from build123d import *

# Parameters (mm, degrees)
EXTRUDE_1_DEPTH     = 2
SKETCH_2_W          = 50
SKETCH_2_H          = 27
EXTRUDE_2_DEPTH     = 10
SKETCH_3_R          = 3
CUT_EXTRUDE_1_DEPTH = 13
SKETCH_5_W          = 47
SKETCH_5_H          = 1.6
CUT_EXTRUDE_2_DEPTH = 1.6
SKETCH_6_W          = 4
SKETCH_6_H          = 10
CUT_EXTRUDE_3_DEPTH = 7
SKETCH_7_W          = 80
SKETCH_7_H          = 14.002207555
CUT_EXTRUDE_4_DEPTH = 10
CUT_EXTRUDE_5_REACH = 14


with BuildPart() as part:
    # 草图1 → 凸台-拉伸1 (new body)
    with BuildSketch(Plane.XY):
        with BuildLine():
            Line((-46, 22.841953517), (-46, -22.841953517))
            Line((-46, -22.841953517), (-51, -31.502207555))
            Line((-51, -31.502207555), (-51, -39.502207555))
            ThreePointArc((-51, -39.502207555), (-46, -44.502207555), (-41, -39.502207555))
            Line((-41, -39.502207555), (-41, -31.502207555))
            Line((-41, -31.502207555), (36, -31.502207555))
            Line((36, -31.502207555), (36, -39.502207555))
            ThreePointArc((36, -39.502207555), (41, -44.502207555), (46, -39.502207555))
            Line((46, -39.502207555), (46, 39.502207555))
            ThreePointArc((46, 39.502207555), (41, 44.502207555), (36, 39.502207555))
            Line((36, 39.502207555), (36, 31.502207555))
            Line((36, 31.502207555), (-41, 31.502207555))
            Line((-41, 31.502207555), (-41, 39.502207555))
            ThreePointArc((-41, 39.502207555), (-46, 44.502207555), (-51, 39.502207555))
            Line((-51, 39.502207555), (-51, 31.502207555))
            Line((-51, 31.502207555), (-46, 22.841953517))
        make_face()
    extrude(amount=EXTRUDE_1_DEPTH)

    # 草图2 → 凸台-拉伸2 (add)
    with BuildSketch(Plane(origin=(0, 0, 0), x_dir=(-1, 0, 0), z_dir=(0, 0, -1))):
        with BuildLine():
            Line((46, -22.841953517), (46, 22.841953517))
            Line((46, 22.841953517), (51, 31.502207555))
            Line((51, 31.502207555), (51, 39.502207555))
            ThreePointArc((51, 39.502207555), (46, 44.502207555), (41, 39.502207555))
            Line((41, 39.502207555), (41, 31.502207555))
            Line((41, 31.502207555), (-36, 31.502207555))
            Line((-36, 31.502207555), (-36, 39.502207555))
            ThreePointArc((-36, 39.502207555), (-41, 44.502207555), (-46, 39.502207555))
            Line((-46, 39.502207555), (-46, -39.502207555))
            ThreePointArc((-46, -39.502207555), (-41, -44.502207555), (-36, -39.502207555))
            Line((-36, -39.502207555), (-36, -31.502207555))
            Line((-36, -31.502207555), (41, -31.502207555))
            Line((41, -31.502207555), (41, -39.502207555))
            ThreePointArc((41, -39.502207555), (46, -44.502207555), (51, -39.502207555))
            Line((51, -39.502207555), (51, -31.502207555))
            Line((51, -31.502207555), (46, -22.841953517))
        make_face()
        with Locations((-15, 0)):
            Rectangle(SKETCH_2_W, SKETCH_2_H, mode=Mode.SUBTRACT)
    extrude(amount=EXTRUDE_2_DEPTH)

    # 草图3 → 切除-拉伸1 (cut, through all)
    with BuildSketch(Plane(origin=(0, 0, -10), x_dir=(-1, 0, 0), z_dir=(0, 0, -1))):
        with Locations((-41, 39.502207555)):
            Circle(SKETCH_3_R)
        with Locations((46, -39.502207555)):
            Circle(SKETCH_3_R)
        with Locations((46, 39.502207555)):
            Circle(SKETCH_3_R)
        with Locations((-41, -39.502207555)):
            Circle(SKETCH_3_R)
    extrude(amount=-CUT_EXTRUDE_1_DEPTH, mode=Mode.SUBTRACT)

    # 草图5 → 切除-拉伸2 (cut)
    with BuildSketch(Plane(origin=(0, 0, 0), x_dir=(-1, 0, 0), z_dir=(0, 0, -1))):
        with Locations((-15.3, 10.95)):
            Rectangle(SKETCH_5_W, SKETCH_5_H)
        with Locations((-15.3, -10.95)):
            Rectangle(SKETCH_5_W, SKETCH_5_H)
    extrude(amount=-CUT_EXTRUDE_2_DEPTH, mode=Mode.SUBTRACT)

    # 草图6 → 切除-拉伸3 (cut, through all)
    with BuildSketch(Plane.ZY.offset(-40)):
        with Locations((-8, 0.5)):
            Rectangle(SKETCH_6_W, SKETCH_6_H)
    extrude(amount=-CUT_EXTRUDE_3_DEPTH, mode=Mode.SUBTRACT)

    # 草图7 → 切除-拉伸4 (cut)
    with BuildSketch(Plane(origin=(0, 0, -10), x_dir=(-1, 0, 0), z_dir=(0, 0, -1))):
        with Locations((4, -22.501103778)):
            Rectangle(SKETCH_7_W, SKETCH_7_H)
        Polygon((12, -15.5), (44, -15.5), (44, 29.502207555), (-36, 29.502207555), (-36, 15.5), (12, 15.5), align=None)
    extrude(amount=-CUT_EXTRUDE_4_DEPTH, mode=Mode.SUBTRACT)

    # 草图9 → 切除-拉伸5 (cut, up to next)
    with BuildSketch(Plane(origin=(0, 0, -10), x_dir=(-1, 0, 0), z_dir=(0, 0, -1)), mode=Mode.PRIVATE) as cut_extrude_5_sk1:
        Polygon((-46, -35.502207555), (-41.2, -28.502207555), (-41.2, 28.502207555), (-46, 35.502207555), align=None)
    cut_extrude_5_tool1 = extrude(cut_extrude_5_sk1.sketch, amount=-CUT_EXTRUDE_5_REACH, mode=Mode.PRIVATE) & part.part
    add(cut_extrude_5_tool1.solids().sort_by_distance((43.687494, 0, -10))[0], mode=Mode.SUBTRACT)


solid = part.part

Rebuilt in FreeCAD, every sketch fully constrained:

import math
import FreeCAD as App
import Part
import Sketcher

V = App.Vector
Q = App.Units.Quantity


def add_polygon(sketch, points):
    """Adds a closed chain of lines whose ends are joined by coincident constraints."""
    first, n = sketch.GeometryCount, len(points)
    for a, b in zip(points, points[1:] + points[:1]):
        sketch.addGeometry(Part.LineSegment(App.Vector(*a, 0), App.Vector(*b, 0)), False)
    for i in range(n):
        sketch.addConstraint(Sketcher.Constraint("Coincident", first + i, 2, first + (i + 1) % n, 1))

doc = App.newDocument("Part")
body = doc.addObject("PartDesign::Body", "Body")

sketch1 = body.newObject("Sketcher::SketchObject", "Sketch")
sketch1.AttachmentSupport = (doc.getObject("XY_Plane"), [""])
sketch1.MapMode = "FlatFace"
sketch1.addGeometry(Part.LineSegment(V(-46, 22.841954, 0), V(-46, -22.841954, 0)), False)
sketch1.addGeometry(Part.LineSegment(V(-46, -22.841954, 0), V(-51, -31.502208, 0)), False)
sketch1.addGeometry(Part.LineSegment(V(-51, -31.502208, 0), V(-51, -39.502208, 0)), False)
sketch1.addGeometry(Part.ArcOfCircle(Part.Circle(V(-46, -39.502208, 0), V(0, 0, 1), 5), math.radians(180), math.radians(360)), False)
sketch1.addGeometry(Part.LineSegment(V(-41, -39.502208, 0), V(-41, -31.502208, 0)), False)
sketch1.addGeometry(Part.LineSegment(V(-41, -31.502208, 0), V(36, -31.502208, 0)), False)
sketch1.addGeometry(Part.LineSegment(V(36, -31.502208, 0), V(36, -39.502208, 0)), False)
sketch1.addGeometry(Part.ArcOfCircle(Part.Circle(V(41, -39.502208, 0), V(0, 0, 1), 5), math.radians(180), math.radians(360)), False)
sketch1.addGeometry(Part.LineSegment(V(46, -39.502208, 0), V(46, 39.502208, 0)), False)
sketch1.addGeometry(Part.ArcOfCircle(Part.Circle(V(41, 39.502208, 0), V(0, 0, 1), 5), math.radians(0), math.radians(180)), False)
sketch1.addGeometry(Part.LineSegment(V(36, 39.502208, 0), V(36, 31.502208, 0)), False)
sketch1.addGeometry(Part.LineSegment(V(36, 31.502208, 0), V(-41, 31.502208, 0)), False)
sketch1.addGeometry(Part.LineSegment(V(-41, 31.502208, 0), V(-41, 39.502208, 0)), False)
sketch1.addGeometry(Part.ArcOfCircle(Part.Circle(V(-46, 39.502208, 0), V(0, 0, 1), 5), math.radians(0), math.radians(180)), False)
sketch1.addGeometry(Part.LineSegment(V(-51, 39.502208, 0), V(-51, 31.502208, 0)), False)
sketch1.addGeometry(Part.LineSegment(V(-51, 31.502208, 0), V(-46, 22.841954, 0)), False)
sketch1.addConstraint(Sketcher.Constraint("Coincident", 0, 2, 1, 1))
sketch1.addConstraint(Sketcher.Constraint("Coincident", 1, 2, 2, 1))
sketch1.addConstraint(Sketcher.Constraint("Tangent", 2, 2, 3, 1))
sketch1.addConstraint(Sketcher.Constraint("Tangent", 3, 2, 4, 1))
sketch1.addConstraint(Sketcher.Constraint("Coincident", 4, 2, 5, 1))
sketch1.addConstraint(Sketcher.Constraint("Coincident", 5, 2, 6, 1))
sketch1.addConstraint(Sketcher.Constraint("Tangent", 6, 2, 7, 1))
sketch1.addConstraint(Sketcher.Constraint("Tangent", 7, 2, 8, 1))
sketch1.addConstraint(Sketcher.Constraint("Tangent", 8, 2, 9, 1))
sketch1.addConstraint(Sketcher.Constraint("Tangent", 9, 2, 10, 1))
sketch1.addConstraint(Sketcher.Constraint("Coincident", 10, 2, 11, 1))
sketch1.addConstraint(Sketcher.Constraint("Coincident", 11, 2, 12, 1))
sketch1.addConstraint(Sketcher.Constraint("Tangent", 12, 2, 13, 1))
sketch1.addConstraint(Sketcher.Constraint("Tangent", 13, 2, 14, 1))
sketch1.addConstraint(Sketcher.Constraint("Coincident", 14, 2, 15, 1))
sketch1.addConstraint(Sketcher.Constraint("Coincident", 15, 2, 0, 1))
sketch1.addConstraint(Sketcher.Constraint("Vertical", 0))
sketch1.addConstraint(Sketcher.Constraint("Vertical", 2))
sketch1.addConstraint(Sketcher.Constraint("Vertical", 4))
sketch1.addConstraint(Sketcher.Constraint("Horizontal", 5))
sketch1.addConstraint(Sketcher.Constraint("Vertical", 6))
sketch1.addConstraint(Sketcher.Constraint("Vertical", 8))
sketch1.addConstraint(Sketcher.Constraint("Vertical", 10))
sketch1.addConstraint(Sketcher.Constraint("Horizontal", 11))
sketch1.addConstraint(Sketcher.Constraint("Vertical", 12))
sketch1.addConstraint(Sketcher.Constraint("Vertical", 14))
sketch1.addConstraint(Sketcher.Constraint("Equal", 3, 7))
sketch1.addConstraint(Sketcher.Constraint("Equal", 7, 9))
sketch1.addConstraint(Sketcher.Constraint("Equal", 9, 13))
sketch1.addConstraint(Sketcher.Constraint("Symmetric", 3, 3, 13, 3, -1))
sketch1.addConstraint(Sketcher.Constraint("Horizontal", 3, 3, 7, 3))
sketch1.addConstraint(Sketcher.Constraint("Horizontal", 9, 3, 13, 3))
sketch1.addConstraint(Sketcher.Constraint("Horizontal", 1, 2, 4, 2))
sketch1.addConstraint(Sketcher.Constraint("Horizontal", 11, 2, 14, 2))
sketch1.addConstraint(Sketcher.Constraint("Vertical", 13, 3, 0, 2))
sketch1.addConstraint(Sketcher.Constraint("Equal", 6, 10))
sketch1.addConstraint(Sketcher.Constraint("Equal", 1, 15))
sketch1.addConstraint(Sketcher.Constraint("Radius", 3, 5.0))
sketch1.addConstraint(Sketcher.Constraint("DistanceX", 5, 1, 5, 2, 77.0))
sketch1.addConstraint(Sketcher.Constraint("DistanceY", 2, 2, 2, 1, 8.0))
sketch1.addConstraint(Sketcher.Constraint("Angle", 1, Q("-120 deg")))
sketch1.addConstraint(Sketcher.Constraint("DistanceX", 3, 3, -1, 1, 46.0))
sketch1.addConstraint(Sketcher.Constraint("DistanceY", 0, 2, 0, 1, 45.683907))
pad1 = body.newObject("PartDesign::Pad", "Pad")
pad1.Profile = sketch1
pad1.Length = 2

sketch2 = body.newObject("Sketcher::SketchObject", "Sketch001")
sketch2.AttachmentSupport = (doc.getObject("XY_Plane"), [""])
sketch2.MapMode = "FlatFace"
sketch2.addGeometry(Part.LineSegment(V(-46, -22.841954, 0), V(-46, 22.841954, 0)), False)
sketch2.addGeometry(Part.LineSegment(V(-46, 22.841954, 0), V(-51, 31.502208, 0)), False)
sketch2.addGeometry(Part.LineSegment(V(-51, 31.502208, 0), V(-51, 39.502208, 0)), False)
sketch2.addGeometry(Part.ArcOfCircle(Part.Circle(V(-46, 39.502208, 0), V(0, 0, 1), 5), math.radians(0), math.radians(180)), False)
sketch2.addGeometry(Part.LineSegment(V(-41, 39.502208, 0), V(-41, 31.502208, 0)), False)
sketch2.addGeometry(Part.LineSegment(V(-41, 31.502208, 0), V(36, 31.502208, 0)), False)
sketch2.addGeometry(Part.LineSegment(V(36, 31.502208, 0), V(36, 39.502208, 0)), False)
sketch2.addGeometry(Part.ArcOfCircle(Part.Circle(V(41, 39.502208, 0), V(0, 0, 1), 5), math.radians(0), math.radians(180)), False)
sketch2.addGeometry(Part.LineSegment(V(46, 39.502208, 0), V(46, -39.502208, 0)), False)
sketch2.addGeometry(Part.ArcOfCircle(Part.Circle(V(41, -39.502208, 0), V(0, 0, 1), 5), math.radians(180), math.radians(360)), False)
sketch2.addGeometry(Part.LineSegment(V(36, -39.502208, 0), V(36, -31.502208, 0)), False)
sketch2.addGeometry(Part.LineSegment(V(36, -31.502208, 0), V(-41, -31.502208, 0)), False)
sketch2.addGeometry(Part.LineSegment(V(-41, -31.502208, 0), V(-41, -39.502208, 0)), False)
sketch2.addGeometry(Part.ArcOfCircle(Part.Circle(V(-46, -39.502208, 0), V(0, 0, 1), 5), math.radians(180), math.radians(360)), False)
sketch2.addGeometry(Part.LineSegment(V(-51, -39.502208, 0), V(-51, -31.502208, 0)), False)
sketch2.addGeometry(Part.LineSegment(V(-51, -31.502208, 0), V(-46, -22.841954, 0)), False)
add_polygon(sketch2, [(-10, -13.5), (40, -13.5), (40, 13.5), (-10, 13.5)])
sketch2.addConstraint(Sketcher.Constraint("Coincident", 0, 2, 1, 1))
sketch2.addConstraint(Sketcher.Constraint("Coincident", 1, 2, 2, 1))
sketch2.addConstraint(Sketcher.Constraint("Tangent", 2, 2, 3, 2))
sketch2.addConstraint(Sketcher.Constraint("Tangent", 3, 1, 4, 1))
sketch2.addConstraint(Sketcher.Constraint("Coincident", 4, 2, 5, 1))
sketch2.addConstraint(Sketcher.Constraint("Coincident", 5, 2, 6, 1))
sketch2.addConstraint(Sketcher.Constraint("Tangent", 6, 2, 7, 2))
sketch2.addConstraint(Sketcher.Constraint("Tangent", 7, 1, 8, 1))
sketch2.addConstraint(Sketcher.Constraint("Tangent", 8, 2, 9, 2))
sketch2.addConstraint(Sketcher.Constraint("Tangent", 9, 1, 10, 1))
sketch2.addConstraint(Sketcher.Constraint("Coincident", 10, 2, 11, 1))
sketch2.addConstraint(Sketcher.Constraint("Coincident", 11, 2, 12, 1))
sketch2.addConstraint(Sketcher.Constraint("Tangent", 12, 2, 13, 2))
sketch2.addConstraint(Sketcher.Constraint("Tangent", 13, 1, 14, 1))
sketch2.addConstraint(Sketcher.Constraint("Coincident", 14, 2, 15, 1))
sketch2.addConstraint(Sketcher.Constraint("Coincident", 15, 2, 0, 1))
sketch2.addConstraint(Sketcher.Constraint("Vertical", 0))
sketch2.addConstraint(Sketcher.Constraint("Vertical", 2))
sketch2.addConstraint(Sketcher.Constraint("Vertical", 4))
sketch2.addConstraint(Sketcher.Constraint("Horizontal", 5))
sketch2.addConstraint(Sketcher.Constraint("Vertical", 6))
sketch2.addConstraint(Sketcher.Constraint("Vertical", 8))
sketch2.addConstraint(Sketcher.Constraint("Vertical", 10))
sketch2.addConstraint(Sketcher.Constraint("Horizontal", 11))
sketch2.addConstraint(Sketcher.Constraint("Vertical", 12))
sketch2.addConstraint(Sketcher.Constraint("Vertical", 14))
sketch2.addConstraint(Sketcher.Constraint("Horizontal", 16))
sketch2.addConstraint(Sketcher.Constraint("Vertical", 17))
sketch2.addConstraint(Sketcher.Constraint("Horizontal", 18))
sketch2.addConstraint(Sketcher.Constraint("Vertical", 19))
sketch2.addConstraint(Sketcher.Constraint("Equal", 3, 7))
sketch2.addConstraint(Sketcher.Constraint("Equal", 7, 9))
sketch2.addConstraint(Sketcher.Constraint("Equal", 9, 13))
sketch2.addConstraint(Sketcher.Constraint("Symmetric", 3, 3, 13, 3, -1))
sketch2.addConstraint(Sketcher.Constraint("Horizontal", 3, 3, 7, 3))
sketch2.addConstraint(Sketcher.Constraint("Horizontal", 9, 3, 13, 3))
sketch2.addConstraint(Sketcher.Constraint("Horizontal", 1, 2, 4, 2))
sketch2.addConstraint(Sketcher.Constraint("Horizontal", 11, 2, 14, 2))
sketch2.addConstraint(Sketcher.Constraint("Vertical", 13, 3, 0, 2))
sketch2.addConstraint(Sketcher.Constraint("Equal", 6, 10))
sketch2.addConstraint(Sketcher.Constraint("Equal", 1, 15))
sketch2.addConstraint(Sketcher.Constraint("Radius", 3, 5.0))
sketch2.addConstraint(Sketcher.Constraint("DistanceX", 5, 1, 5, 2, 77.0))
sketch2.addConstraint(Sketcher.Constraint("DistanceX", 16, 1, 16, 2, 50.0))
sketch2.addConstraint(Sketcher.Constraint("DistanceY", 2, 1, 2, 2, 8.0))
sketch2.addConstraint(Sketcher.Constraint("DistanceY", 17, 1, 17, 2, 27.0))
sketch2.addConstraint(Sketcher.Constraint("Angle", 1, Q("120 deg")))
sketch2.addConstraint(Sketcher.Constraint("DistanceX", 3, 3, -1, 1, 46.0))
sketch2.addConstraint(Sketcher.Constraint("DistanceX", -1, 1, 16, 2, 40.0))
sketch2.addConstraint(Sketcher.Constraint("DistanceY", 16, 2, -1, 1, 13.5))
sketch2.addConstraint(Sketcher.Constraint("DistanceY", 0, 1, 0, 2, 45.683907))
pad2 = body.newObject("PartDesign::Pad", "Pad001")
pad2.Profile = sketch2
pad2.Length = 10
pad2.Reversed = True

sketch3 = body.newObject("Sketcher::SketchObject", "Sketch002")
sketch3.AttachmentSupport = (doc.getObject("XY_Plane"), [""])
sketch3.MapMode = "FlatFace"
sketch3.AttachmentOffset = App.Placement(V(0, 0, -10), App.Rotation())
sketch3.addGeometry(Part.Circle(V(41, 39.502208, 0), V(0, 0, 1), 3), False)
sketch3.addGeometry(Part.Circle(V(-46, -39.502208, 0), V(0, 0, 1), 3), False)
sketch3.addGeometry(Part.Circle(V(-46, 39.502208, 0), V(0, 0, 1), 3), False)
sketch3.addGeometry(Part.Circle(V(41, -39.502208, 0), V(0, 0, 1), 3), False)
sketch3.addConstraint(Sketcher.Constraint("Equal", 0, 1))
sketch3.addConstraint(Sketcher.Constraint("Equal", 1, 2))
sketch3.addConstraint(Sketcher.Constraint("Equal", 2, 3))
sketch3.addConstraint(Sketcher.Constraint("Symmetric", 1, 3, 2, 3, -1))
sketch3.addConstraint(Sketcher.Constraint("Symmetric", 0, 3, 3, 3, -1))
sketch3.addConstraint(Sketcher.Constraint("Horizontal", 0, 3, 2, 3))
sketch3.addConstraint(Sketcher.Constraint("Diameter", 0, 6.0))
sketch3.addConstraint(Sketcher.Constraint("DistanceX", -1, 1, 0, 3, 41.0))
sketch3.addConstraint(Sketcher.Constraint("DistanceX", 1, 3, -1, 1, 46.0))
sketch3.addConstraint(Sketcher.Constraint("DistanceY", -1, 1, 0, 3, 39.502208))
pocket1 = body.newObject("PartDesign::Pocket", "Pocket")
pocket1.Profile = sketch3
pocket1.Type = "ThroughAll"
pocket1.Reversed = True

sketch4 = body.newObject("Sketcher::SketchObject", "Sketch003")
sketch4.AttachmentSupport = (doc.getObject("XY_Plane"), [""])
sketch4.MapMode = "FlatFace"
add_polygon(sketch4, [(38.8, 11.75), (38.8, 10.15), (-8.2, 10.15), (-8.2, 11.75)])
add_polygon(sketch4, [(38.8, -10.15), (38.8, -11.75), (-8.2, -11.75), (-8.2, -10.15)])
sketch4.addConstraint(Sketcher.Constraint("Vertical", 0))
sketch4.addConstraint(Sketcher.Constraint("Horizontal", 1))
sketch4.addConstraint(Sketcher.Constraint("Vertical", 2))
sketch4.addConstraint(Sketcher.Constraint("Horizontal", 3))
sketch4.addConstraint(Sketcher.Constraint("Vertical", 4))
sketch4.addConstraint(Sketcher.Constraint("Horizontal", 5))
sketch4.addConstraint(Sketcher.Constraint("Vertical", 6))
sketch4.addConstraint(Sketcher.Constraint("Horizontal", 7))
sketch4.addConstraint(Sketcher.Constraint("Symmetric", 3, 2, 4, 2, -1))
sketch4.addConstraint(Sketcher.Constraint("Symmetric", 1, 2, 6, 2, -1))
sketch4.addConstraint(Sketcher.Constraint("DistanceX", 1, 2, 1, 1, 47.0))
sketch4.addConstraint(Sketcher.Constraint("DistanceY", 0, 2, 0, 1, 1.6))
sketch4.addConstraint(Sketcher.Constraint("DistanceX", -1, 1, 0, 2, 38.8))
sketch4.addConstraint(Sketcher.Constraint("DistanceY", 4, 2, 0, 2, 21.9))
pocket2 = body.newObject("PartDesign::Pocket", "Pocket001")
pocket2.Profile = sketch4
pocket2.Length = 1.6
pocket2.Reversed = True

sketch5 = body.newObject("Sketcher::SketchObject", "Sketch004")
sketch5.AttachmentSupport = (doc.getObject("YZ_Plane"), [""])
sketch5.MapMode = "FlatFace"
sketch5.AttachmentOffset = App.Placement(V(0, 0, 40), App.Rotation())
add_polygon(sketch5, [(5.5, -10), (-4.5, -10), (-4.5, -6), (5.5, -6)])
sketch5.addConstraint(Sketcher.Constraint("Horizontal", 0))
sketch5.addConstraint(Sketcher.Constraint("Vertical", 1))
sketch5.addConstraint(Sketcher.Constraint("Horizontal", 2))
sketch5.addConstraint(Sketcher.Constraint("Vertical", 3))
sketch5.addConstraint(Sketcher.Constraint("DistanceX", 0, 2, 0, 1, 10.0))
sketch5.addConstraint(Sketcher.Constraint("DistanceY", 1, 1, 1, 2, 4.0))
sketch5.addConstraint(Sketcher.Constraint("DistanceY", 0, 2, -1, 1, 10.0))
sketch5.addConstraint(Sketcher.Constraint("DistanceX", 0, 2, -1, 1, 4.5))
pocket3 = body.newObject("PartDesign::Pocket", "Pocket002")
pocket3.Profile = sketch5
pocket3.Type = "ThroughAll"
pocket3.Reversed = True

sketch6 = body.newObject("Sketcher::SketchObject", "Sketch005")
sketch6.AttachmentSupport = (doc.getObject("XY_Plane"), [""])
sketch6.MapMode = "FlatFace"
sketch6.AttachmentOffset = App.Placement(V(0, 0, -10), App.Rotation())
add_polygon(sketch6, [(36, -15.5), (36, -29.502208), (-44, -29.502208), (-44, 29.502208), (36, 29.502208), (36, 15.5), (-12, 15.5), (-12, -15.5)])
sketch6.addConstraint(Sketcher.Constraint("Vertical", 0))
sketch6.addConstraint(Sketcher.Constraint("Horizontal", 1))
sketch6.addConstraint(Sketcher.Constraint("Vertical", 2))
sketch6.addConstraint(Sketcher.Constraint("Horizontal", 3))
sketch6.addConstraint(Sketcher.Constraint("Vertical", 4))
sketch6.addConstraint(Sketcher.Constraint("Horizontal", 5))
sketch6.addConstraint(Sketcher.Constraint("Vertical", 6))
sketch6.addConstraint(Sketcher.Constraint("Horizontal", 7))
sketch6.addConstraint(Sketcher.Constraint("Symmetric", 0, 2, 3, 2, -1))
sketch6.addConstraint(Sketcher.Constraint("Equal", 0, 4))
sketch6.addConstraint(Sketcher.Constraint("DistanceX", 1, 2, 1, 1, 80.0))
sketch6.addConstraint(Sketcher.Constraint("DistanceX", 5, 2, 5, 1, 48.0))
sketch6.addConstraint(Sketcher.Constraint("DistanceY", 6, 2, 6, 1, 31.0))
sketch6.addConstraint(Sketcher.Constraint("DistanceX", -1, 1, 0, 2, 36.0))
sketch6.addConstraint(Sketcher.Constraint("DistanceY", 0, 2, 0, 1, 14.002208))
pocket4 = body.newObject("PartDesign::Pocket", "Pocket003")
pocket4.Profile = sketch6
pocket4.Length = 10
pocket4.Reversed = True

sketch7 = body.newObject("Sketcher::SketchObject", "Sketch006")
sketch7.AttachmentSupport = (doc.getObject("XY_Plane"), [""])
sketch7.MapMode = "FlatFace"
sketch7.AttachmentOffset = App.Placement(V(0, 0, -10), App.Rotation())
add_polygon(sketch7, [(46, -35.502208), (41.2, -28.502208), (41.2, 28.502208), (46, 35.502208)])
sketch7.addConstraint(Sketcher.Constraint("Vertical", 1))
sketch7.addConstraint(Sketcher.Constraint("Vertical", 3))
sketch7.addConstraint(Sketcher.Constraint("Equal", 0, 2))
sketch7.addConstraint(Sketcher.Constraint("DistanceX", -1, 1, 2, 2, 46.0))
sketch7.addConstraint(Sketcher.Constraint("DistanceY", 1, 2, 2, 2, 7.0))
sketch7.addConstraint(Sketcher.Constraint("DistanceX", -1, 1, 0, 2, 41.2))
sketch7.addConstraint(Sketcher.Constraint("DistanceY", 1, 1, 1, 2, 57.004415))
sketch7.addConstraint(Sketcher.Constraint("DistanceY", 0, 2, -1, 1, 28.502208))
pocket5 = body.newObject("PartDesign::Pocket", "Pocket004")
pocket5.Profile = sketch7
pocket5.Length = 12
pocket5.Reversed = True

doc.recompute()
